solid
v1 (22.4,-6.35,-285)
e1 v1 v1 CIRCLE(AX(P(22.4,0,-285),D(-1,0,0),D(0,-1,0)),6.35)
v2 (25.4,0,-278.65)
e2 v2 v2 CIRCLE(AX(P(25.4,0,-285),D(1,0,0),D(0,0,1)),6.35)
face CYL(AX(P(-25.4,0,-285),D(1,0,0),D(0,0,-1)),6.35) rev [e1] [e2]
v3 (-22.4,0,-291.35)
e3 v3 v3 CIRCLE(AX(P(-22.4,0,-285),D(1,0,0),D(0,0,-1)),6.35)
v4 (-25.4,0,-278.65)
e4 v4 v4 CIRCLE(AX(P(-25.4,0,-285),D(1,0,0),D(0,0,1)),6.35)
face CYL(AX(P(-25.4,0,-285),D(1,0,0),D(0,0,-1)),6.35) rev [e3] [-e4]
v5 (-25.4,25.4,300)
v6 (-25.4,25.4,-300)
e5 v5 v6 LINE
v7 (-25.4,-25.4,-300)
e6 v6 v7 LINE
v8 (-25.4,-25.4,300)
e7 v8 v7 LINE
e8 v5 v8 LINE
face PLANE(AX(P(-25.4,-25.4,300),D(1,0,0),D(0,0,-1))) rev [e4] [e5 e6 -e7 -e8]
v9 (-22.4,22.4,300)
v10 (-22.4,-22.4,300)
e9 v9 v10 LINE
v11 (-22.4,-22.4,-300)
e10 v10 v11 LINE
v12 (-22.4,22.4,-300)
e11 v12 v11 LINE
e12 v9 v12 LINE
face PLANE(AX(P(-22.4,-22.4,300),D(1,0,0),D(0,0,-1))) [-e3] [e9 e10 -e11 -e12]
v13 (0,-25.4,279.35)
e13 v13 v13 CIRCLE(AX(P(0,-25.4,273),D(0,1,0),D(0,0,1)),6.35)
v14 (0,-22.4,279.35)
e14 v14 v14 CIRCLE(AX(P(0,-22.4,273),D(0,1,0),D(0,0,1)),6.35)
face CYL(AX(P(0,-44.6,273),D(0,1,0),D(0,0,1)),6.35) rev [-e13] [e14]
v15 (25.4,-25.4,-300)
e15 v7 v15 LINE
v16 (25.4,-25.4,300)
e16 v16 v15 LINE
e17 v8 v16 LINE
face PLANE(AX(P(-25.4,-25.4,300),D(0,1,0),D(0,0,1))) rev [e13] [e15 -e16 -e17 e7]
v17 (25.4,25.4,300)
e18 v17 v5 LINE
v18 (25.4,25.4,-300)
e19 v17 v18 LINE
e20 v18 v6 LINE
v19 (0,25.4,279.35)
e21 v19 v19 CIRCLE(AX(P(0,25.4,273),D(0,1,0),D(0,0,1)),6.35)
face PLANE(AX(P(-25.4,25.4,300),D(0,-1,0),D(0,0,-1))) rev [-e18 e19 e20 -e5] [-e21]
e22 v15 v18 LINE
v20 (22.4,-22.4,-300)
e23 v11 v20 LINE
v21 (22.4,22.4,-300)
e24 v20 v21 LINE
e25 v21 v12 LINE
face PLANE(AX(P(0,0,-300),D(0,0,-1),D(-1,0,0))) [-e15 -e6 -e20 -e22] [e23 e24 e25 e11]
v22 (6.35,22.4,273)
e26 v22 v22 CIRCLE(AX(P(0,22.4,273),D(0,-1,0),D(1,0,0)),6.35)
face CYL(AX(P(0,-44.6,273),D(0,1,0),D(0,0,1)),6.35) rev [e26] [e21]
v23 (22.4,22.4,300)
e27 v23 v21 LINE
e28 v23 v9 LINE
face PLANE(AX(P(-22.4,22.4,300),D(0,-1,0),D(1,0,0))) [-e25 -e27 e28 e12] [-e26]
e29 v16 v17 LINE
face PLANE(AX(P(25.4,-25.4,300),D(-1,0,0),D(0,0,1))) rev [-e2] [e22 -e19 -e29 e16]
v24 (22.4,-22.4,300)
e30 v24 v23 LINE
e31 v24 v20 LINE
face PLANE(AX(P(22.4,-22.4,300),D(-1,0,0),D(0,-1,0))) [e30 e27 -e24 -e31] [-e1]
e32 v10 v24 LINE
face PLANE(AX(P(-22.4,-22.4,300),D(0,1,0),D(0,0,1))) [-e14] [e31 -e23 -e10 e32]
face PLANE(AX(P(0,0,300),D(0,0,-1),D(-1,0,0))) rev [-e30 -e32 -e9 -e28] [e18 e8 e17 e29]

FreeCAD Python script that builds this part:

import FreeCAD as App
import Part
import Sketcher
from FreeCAD import Vector
Q = App.Units.Quantity

doc = App.newDocument("Part")
body = doc.addObject("PartDesign::Body", "Body")

# Sketch on XY plane
sketch1 = doc.addObject("Sketcher::SketchObject", "Sketch")
body.addObject(sketch1)
sketch1.AttachmentSupport = (doc.XY_Plane, [""])
sketch1.MapMode = "FlatFace"
sketch1.addGeometry([
    Part.LineSegment(Vector(-25, 25, 0), Vector(-25, -25, 0)),  # 0
    Part.LineSegment(Vector(-25, -25, 0), Vector(25, -25, 0)),  # 1
    Part.LineSegment(Vector(25, -25, 0), Vector(25, 25, 0)),  # 2
    Part.LineSegment(Vector(25, 25, 0), Vector(-25, 25, 0)),  # 3
    Part.LineSegment(Vector(22, -22, 0), Vector(-22, -22, 0)),  # 4
    Part.LineSegment(Vector(-22, -22, 0), Vector(-22, 22, 0)),  # 5
    Part.LineSegment(Vector(-22, 22, 0), Vector(22, 22, 0)),  # 6
    Part.LineSegment(Vector(22, 22, 0), Vector(22, -22, 0)),  # 7
], False)
sketch1.addConstraint([
    Sketcher.Constraint("Coincident", 0, 2, 1, 1),
    Sketcher.Constraint("Coincident", 1, 2, 2, 1),
    Sketcher.Constraint("Coincident", 2, 2, 3, 1),
    Sketcher.Constraint("Coincident", 3, 2, 0, 1),
    Sketcher.Constraint("Coincident", 4, 2, 5, 1),
    Sketcher.Constraint("Coincident", 5, 2, 6, 1),
    Sketcher.Constraint("Coincident", 6, 2, 7, 1),
    Sketcher.Constraint("Coincident", 7, 2, 4, 1),
    Sketcher.Constraint("Vertical", 0),
    Sketcher.Constraint("Horizontal", 1),
    Sketcher.Constraint("Vertical", 2),
    Sketcher.Constraint("Horizontal", 3),
    Sketcher.Constraint("Horizontal", 4),
    Sketcher.Constraint("Vertical", 5),
    Sketcher.Constraint("Horizontal", 6),
    Sketcher.Constraint("Vertical", 7),
    Sketcher.Constraint("Symmetric", 0, 2, 2, 2, -1, 1),
    Sketcher.Constraint("Symmetric", 4, 2, 6, 2, -1, 1),
    Sketcher.Constraint("Equal", 3, 0),
    Sketcher.Constraint("Equal", 6, 5),
    Sketcher.Constraint("DistanceX", 1, 1, 1, 2, Q("50.8 mm")),
    Sketcher.Constraint("DistanceX", 4, 2, 4, 1, Q("44.8 mm")),
])
pad1 = doc.addObject("PartDesign::Pad", "Pad")
body.addObject(pad1)
pad1.Profile = sketch1
pad1.Length = 600
pad1.Midplane = True

# Sketch on YZ plane
sketch2 = doc.addObject("Sketcher::SketchObject", "Sketch001")
body.addObject(sketch2)
sketch2.AttachmentSupport = (doc.YZ_Plane, [""])
sketch2.MapMode = "FlatFace"
sketch2.AttachmentOffset = App.Placement(Vector(0, 0, 25.4), App.Rotation())
sketch2.addGeometry(Part.Circle(Vector(0, -285, 0), Vector(0, 0, 1), 6), False)
sketch2.addConstraint([
    Sketcher.Constraint("PointOnObject", 0, 3, -2),
    Sketcher.Constraint("Diameter", 0, Q("12.7 mm")),
    Sketcher.Constraint("DistanceY", 0, 3, -1, 1, Q("285 mm")),
])
pocket1 = doc.addObject("PartDesign::Pocket", "Pocket")
body.addObject(pocket1)
pocket1.Profile = sketch2
pocket1.Type = "ThroughAll"

# Sketch on XZ plane
sketch3 = doc.addObject("Sketcher::SketchObject", "Sketch002")
body.addObject(sketch3)
sketch3.AttachmentSupport = (doc.XZ_Plane, [""])
sketch3.MapMode = "FlatFace"
sketch3.AttachmentOffset = App.Placement(Vector(0, 0, -25.4), App.Rotation())
sketch3.addGeometry(Part.Circle(Vector(0, 273, 0), Vector(0, 0, 1), 6), False)
sketch3.addConstraint([
    Sketcher.Constraint("PointOnObject", 0, 3, -2),
    Sketcher.Constraint("Diameter", 0, Q("12.7 mm")),
    Sketcher.Constraint("DistanceY", -1, 1, 0, 3, Q("273 mm")),
])
pocket2 = doc.addObject("PartDesign::Pocket", "Pocket001")
body.addObject(pocket2)
pocket2.Profile = sketch3
pocket2.Length = 70
pocket2.Reversed = True

doc.recompute()
